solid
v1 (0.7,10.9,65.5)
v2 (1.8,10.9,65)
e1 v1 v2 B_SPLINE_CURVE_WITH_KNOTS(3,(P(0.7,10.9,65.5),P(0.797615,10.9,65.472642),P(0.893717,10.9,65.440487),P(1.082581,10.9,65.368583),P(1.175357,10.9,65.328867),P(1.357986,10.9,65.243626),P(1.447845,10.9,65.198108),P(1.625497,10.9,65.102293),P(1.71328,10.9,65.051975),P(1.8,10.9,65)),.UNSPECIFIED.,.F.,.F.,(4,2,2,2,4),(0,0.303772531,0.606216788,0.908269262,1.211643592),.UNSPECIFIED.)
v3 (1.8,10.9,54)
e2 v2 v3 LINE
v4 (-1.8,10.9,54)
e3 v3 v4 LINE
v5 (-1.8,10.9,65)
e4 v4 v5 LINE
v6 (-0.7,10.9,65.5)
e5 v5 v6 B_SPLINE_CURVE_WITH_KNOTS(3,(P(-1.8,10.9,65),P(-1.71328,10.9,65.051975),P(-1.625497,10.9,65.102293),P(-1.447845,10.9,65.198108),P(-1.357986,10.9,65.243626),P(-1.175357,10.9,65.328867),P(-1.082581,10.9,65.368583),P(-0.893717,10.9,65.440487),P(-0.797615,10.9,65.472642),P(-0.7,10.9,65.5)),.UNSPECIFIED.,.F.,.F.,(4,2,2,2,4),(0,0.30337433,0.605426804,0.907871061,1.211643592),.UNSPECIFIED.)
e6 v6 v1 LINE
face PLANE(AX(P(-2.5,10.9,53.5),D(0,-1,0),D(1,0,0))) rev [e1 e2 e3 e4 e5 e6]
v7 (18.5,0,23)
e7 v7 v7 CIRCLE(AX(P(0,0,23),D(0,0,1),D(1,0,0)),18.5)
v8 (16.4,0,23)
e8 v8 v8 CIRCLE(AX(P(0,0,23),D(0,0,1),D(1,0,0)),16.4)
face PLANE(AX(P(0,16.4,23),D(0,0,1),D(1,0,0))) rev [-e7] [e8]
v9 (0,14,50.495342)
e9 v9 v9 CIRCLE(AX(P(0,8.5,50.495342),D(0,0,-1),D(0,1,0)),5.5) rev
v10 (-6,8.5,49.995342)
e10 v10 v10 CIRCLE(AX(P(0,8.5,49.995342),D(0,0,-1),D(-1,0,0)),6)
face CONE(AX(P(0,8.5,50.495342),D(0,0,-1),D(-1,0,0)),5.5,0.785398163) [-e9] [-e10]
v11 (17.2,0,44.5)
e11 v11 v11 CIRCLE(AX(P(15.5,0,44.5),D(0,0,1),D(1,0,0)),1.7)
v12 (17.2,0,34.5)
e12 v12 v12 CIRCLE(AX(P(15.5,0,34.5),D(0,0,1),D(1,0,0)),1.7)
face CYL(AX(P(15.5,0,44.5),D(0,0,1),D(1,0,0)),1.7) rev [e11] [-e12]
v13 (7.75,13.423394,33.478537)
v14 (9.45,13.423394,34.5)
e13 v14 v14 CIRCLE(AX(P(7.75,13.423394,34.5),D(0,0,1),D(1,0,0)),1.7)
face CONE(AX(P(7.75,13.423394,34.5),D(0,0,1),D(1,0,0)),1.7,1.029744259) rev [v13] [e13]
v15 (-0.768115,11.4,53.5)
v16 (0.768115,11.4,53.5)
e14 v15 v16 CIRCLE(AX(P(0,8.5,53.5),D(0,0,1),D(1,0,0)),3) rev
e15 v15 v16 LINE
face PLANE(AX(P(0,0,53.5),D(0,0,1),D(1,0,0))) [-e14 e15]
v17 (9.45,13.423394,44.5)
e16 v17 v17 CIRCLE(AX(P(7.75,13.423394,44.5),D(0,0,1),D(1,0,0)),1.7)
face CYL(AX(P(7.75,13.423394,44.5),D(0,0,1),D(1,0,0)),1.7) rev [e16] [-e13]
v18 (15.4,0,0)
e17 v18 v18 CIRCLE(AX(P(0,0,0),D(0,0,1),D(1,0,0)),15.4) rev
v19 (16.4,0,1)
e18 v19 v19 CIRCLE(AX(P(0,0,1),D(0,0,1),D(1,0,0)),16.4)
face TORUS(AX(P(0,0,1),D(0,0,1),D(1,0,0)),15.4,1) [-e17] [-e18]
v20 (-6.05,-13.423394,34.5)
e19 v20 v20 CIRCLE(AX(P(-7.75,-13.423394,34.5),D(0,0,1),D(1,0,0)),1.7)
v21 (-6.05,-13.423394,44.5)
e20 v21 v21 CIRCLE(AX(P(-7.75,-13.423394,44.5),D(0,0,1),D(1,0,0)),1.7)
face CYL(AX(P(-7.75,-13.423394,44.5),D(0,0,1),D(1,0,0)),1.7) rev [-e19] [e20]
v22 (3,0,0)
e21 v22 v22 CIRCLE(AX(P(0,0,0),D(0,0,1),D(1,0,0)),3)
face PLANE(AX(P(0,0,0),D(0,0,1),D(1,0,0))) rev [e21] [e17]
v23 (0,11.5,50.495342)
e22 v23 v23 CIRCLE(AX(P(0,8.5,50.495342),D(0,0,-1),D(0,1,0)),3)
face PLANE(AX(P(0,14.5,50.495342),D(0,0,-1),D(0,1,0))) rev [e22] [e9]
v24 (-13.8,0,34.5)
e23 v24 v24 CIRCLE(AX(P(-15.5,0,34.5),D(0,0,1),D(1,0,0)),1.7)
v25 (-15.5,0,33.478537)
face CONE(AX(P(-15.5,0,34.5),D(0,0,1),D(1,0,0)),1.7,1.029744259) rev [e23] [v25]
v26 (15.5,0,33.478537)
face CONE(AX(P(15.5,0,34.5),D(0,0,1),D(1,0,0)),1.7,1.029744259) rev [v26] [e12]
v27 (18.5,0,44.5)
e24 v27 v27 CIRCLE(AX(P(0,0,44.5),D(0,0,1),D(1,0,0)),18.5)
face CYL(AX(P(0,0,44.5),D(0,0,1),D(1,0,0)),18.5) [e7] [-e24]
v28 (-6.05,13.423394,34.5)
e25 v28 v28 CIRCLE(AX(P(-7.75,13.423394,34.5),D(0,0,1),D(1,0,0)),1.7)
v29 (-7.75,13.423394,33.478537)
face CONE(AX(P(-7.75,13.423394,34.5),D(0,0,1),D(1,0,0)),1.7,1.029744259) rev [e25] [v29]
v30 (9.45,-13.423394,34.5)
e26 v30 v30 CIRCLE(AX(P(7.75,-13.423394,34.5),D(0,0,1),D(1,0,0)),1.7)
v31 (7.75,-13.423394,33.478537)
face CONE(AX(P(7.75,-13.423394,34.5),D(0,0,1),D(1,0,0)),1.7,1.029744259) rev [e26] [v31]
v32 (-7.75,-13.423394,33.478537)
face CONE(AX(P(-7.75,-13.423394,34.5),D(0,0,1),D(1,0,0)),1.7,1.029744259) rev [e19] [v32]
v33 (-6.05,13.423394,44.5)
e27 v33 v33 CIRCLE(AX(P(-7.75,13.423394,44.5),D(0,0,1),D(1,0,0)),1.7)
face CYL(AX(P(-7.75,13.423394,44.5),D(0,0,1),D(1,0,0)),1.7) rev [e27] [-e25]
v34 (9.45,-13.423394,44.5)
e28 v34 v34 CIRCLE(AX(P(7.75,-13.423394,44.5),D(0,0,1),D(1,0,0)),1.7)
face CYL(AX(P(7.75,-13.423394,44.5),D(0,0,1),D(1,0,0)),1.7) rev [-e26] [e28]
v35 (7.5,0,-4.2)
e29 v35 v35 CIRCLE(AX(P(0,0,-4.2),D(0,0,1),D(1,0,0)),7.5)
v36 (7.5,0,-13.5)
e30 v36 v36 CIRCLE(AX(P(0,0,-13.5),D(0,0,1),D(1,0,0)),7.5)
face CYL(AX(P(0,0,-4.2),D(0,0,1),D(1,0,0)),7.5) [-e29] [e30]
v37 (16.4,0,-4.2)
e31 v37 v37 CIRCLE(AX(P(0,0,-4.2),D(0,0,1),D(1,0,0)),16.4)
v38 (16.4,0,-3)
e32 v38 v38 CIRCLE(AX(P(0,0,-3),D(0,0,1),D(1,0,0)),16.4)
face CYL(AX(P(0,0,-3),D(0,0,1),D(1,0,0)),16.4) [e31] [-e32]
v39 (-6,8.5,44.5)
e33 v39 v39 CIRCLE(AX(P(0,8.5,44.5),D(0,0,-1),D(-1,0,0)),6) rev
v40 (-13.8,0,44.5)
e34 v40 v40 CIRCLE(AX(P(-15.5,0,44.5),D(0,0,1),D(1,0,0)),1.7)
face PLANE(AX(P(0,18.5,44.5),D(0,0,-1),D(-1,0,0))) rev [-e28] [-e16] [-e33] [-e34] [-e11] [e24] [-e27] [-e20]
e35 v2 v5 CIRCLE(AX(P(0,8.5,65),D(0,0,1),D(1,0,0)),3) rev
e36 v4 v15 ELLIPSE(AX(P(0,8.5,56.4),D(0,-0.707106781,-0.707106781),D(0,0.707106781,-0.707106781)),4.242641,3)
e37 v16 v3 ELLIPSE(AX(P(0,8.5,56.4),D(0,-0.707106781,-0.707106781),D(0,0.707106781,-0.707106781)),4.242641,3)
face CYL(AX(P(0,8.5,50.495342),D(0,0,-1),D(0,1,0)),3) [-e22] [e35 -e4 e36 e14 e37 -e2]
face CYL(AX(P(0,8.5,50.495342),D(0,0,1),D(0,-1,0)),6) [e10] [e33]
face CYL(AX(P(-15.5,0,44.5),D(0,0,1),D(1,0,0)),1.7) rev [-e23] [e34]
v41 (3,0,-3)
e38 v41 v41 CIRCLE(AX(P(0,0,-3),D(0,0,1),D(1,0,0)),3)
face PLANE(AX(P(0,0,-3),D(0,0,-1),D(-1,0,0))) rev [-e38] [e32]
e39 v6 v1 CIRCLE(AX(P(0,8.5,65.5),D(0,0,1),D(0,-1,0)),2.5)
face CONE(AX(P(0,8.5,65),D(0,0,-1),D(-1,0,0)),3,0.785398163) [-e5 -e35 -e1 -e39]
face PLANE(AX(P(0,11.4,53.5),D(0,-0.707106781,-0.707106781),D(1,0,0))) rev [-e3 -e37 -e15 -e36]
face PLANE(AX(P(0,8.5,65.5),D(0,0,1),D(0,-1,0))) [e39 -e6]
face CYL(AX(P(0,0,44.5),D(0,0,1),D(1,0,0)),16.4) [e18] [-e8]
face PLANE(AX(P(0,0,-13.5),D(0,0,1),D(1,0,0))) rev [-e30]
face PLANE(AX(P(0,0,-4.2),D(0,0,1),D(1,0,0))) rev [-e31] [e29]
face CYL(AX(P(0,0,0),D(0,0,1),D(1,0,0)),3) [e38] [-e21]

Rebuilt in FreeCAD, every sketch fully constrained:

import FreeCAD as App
import Part
import Sketcher
from FreeCAD import Vector
Q = App.Units.Quantity


def edges_at(feature, points):
    """Names of the edges that pass closest to the given points."""
    edges = feature.Shape.Edges
    near = lambda p: min(range(len(edges)), key=lambda i: edges[i].distToShape(Part.Vertex(*p))[0])
    return sorted({f"Edge{near(p) + 1}" for p in points})

doc = App.newDocument("Part")
body = doc.addObject("PartDesign::Body", "Body")

# Sketch on YZ plane
sketch1 = body.newObject("Sketcher::SketchObject", "Sketch")
sketch1.AttachmentSupport = (doc.getObject("YZ_Plane"), [""])
sketch1.MapMode = "FlatFace"
sketch1.addGeometry([
    Part.LineSegment(Vector(0, 0, 0), Vector(16.4, 0, 0)),  # 0
    Part.LineSegment(Vector(16.4, 0, 0), Vector(16.4, 23, 0)),  # 1
    Part.LineSegment(Vector(16.4, 23, 0), Vector(18.5, 23, 0)),  # 2
    Part.LineSegment(Vector(18.5, 23, 0), Vector(18.5, 44.5, 0)),  # 3
    Part.LineSegment(Vector(18.5, 44.5, 0), Vector(0, 44.5, 0)),  # 4
    Part.LineSegment(Vector(0, 44.5, 0), Vector(0, 0, 0)),  # 5
], False)
sketch1.addConstraint([
    Sketcher.Constraint("Coincident", 0, 2, 1, 1),
    Sketcher.Constraint("Coincident", 1, 2, 2, 1),
    Sketcher.Constraint("Coincident", 2, 2, 3, 1),
    Sketcher.Constraint("Coincident", 3, 2, 4, 1),
    Sketcher.Constraint("Coincident", 4, 2, 5, 1),
    Sketcher.Constraint("Coincident", 5, 2, 0, 1),
    Sketcher.Constraint("Horizontal", 0),
    Sketcher.Constraint("Vertical", 1),
    Sketcher.Constraint("Horizontal", 2),
    Sketcher.Constraint("Vertical", 3),
    Sketcher.Constraint("Horizontal", 4),
    Sketcher.Constraint("Vertical", 5),
    Sketcher.Constraint("Coincident", 5, 2, -1, 1),
    Sketcher.Constraint("DistanceY", 1, 1, 1, 2, 23.0),
    Sketcher.Constraint("DistanceX", 0, 1, 0, 2, 16.4),
    Sketcher.Constraint("DistanceX", 2, 1, 2, 2, 2.1),
    Sketcher.Constraint("DistanceY", 3, 1, 3, 2, 21.5),
])
revolution = body.newObject("PartDesign::Revolution", "Revolution")
revolution.Profile = sketch1
revolution.ReferenceAxis = (sketch1, ["V_Axis"])
revolution.Angle = 360

# Sketch on YZ plane
sketch2 = body.newObject("Sketcher::SketchObject", "Sketch001")
sketch2.AttachmentSupport = (doc.getObject("YZ_Plane"), [""])
sketch2.MapMode = "FlatFace"
sketch2.addGeometry([
    Part.LineSegment(Vector(14, 50, 0), Vector(8, 50, 0)),
    Part.LineSegment(Vector(8, 50, 0), Vector(8, 44, 0)),
    Part.LineSegment(Vector(8, 44, 0), Vector(14, 44, 0)),
    Part.LineSegment(Vector(14, 44, 0), Vector(14, 50, 0)),
], False)
sketch2.addGeometry(Part.LineSegment(Vector(8, 50, 0), Vector(8, 44, 0)), True)  # axis
sketch2.addConstraint([
    Sketcher.Constraint("Coincident", 0, 2, 1, 1),
    Sketcher.Constraint("Coincident", 1, 2, 2, 1),
    Sketcher.Constraint("Coincident", 2, 2, 3, 1),
    Sketcher.Constraint("Coincident", 3, 2, 0, 1),
    Sketcher.Constraint("Horizontal", 0),
    Sketcher.Constraint("Vertical", 1),
    Sketcher.Constraint("Horizontal", 2),
    Sketcher.Constraint("Vertical", 3),
    Sketcher.Constraint("Vertical", 4),
    Sketcher.Constraint("Coincident", 4, 1, 0, 2),
    Sketcher.Constraint("Horizontal", 2, 2, 4, 2),
    Sketcher.Constraint("DistanceX", 0, 2, 0, 1, 6.0),
    Sketcher.Constraint("DistanceX", -1, 1, 0, 2, 8.5),
    Sketcher.Constraint("DistanceY", -1, 1, 1, 2, 44.5),
    Sketcher.Constraint("DistanceY", 1, 2, 1, 1, 5.995342),
])
revolution2 = body.newObject("PartDesign::Revolution", "Revolution001")
revolution2.Profile = sketch2
revolution2.ReferenceAxis = (sketch2, ["Axis0"])
revolution2.Angle = 360

# Sketch on YZ plane
sketch3 = body.newObject("Sketcher::SketchObject", "Sketch002")
sketch3.AttachmentSupport = (doc.getObject("YZ_Plane"), [""])
sketch3.MapMode = "FlatFace"
sketch3.addGeometry([
    Part.LineSegment(Vector(11.5, 65.5, 0), Vector(8.5, 65.5, 0)),
    Part.LineSegment(Vector(8.5, 65.5, 0), Vector(8.5, 50.5, 0)),
    Part.LineSegment(Vector(8.5, 50.5, 0), Vector(11.5, 50.5, 0)),
    Part.LineSegment(Vector(11.5, 50.5, 0), Vector(11.5, 65.5, 0)),
], False)
sketch3.addGeometry(Part.LineSegment(Vector(8.5, 50.5, 0), Vector(8.5, 65.5, 0)), True)  # axis
sketch3.addConstraint([
    Sketcher.Constraint("Coincident", 0, 2, 1, 1),
    Sketcher.Constraint("Coincident", 1, 2, 2, 1),
    Sketcher.Constraint("Coincident", 2, 2, 3, 1),
    Sketcher.Constraint("Coincident", 3, 2, 0, 1),
    Sketcher.Constraint("Horizontal", 0),
    Sketcher.Constraint("Vertical", 1),
    Sketcher.Constraint("Horizontal", 2),
    Sketcher.Constraint("Vertical", 3),
    Sketcher.Constraint("Vertical", 4),
    Sketcher.Constraint("Coincident", 4, 1, 1, 2),
    Sketcher.Constraint("Horizontal", 3, 2, 4, 2),
    Sketcher.Constraint("DistanceX", 0, 2, 0, 1, 3.0),
    Sketcher.Constraint("DistanceX", -1, 1, 0, 2, 8.5),
    Sketcher.Constraint("DistanceY", -1, 1, 0, 2, 65.5),
    Sketcher.Constraint("DistanceY", 1, 2, 1, 1, 15.004658),
])
revolution3 = body.newObject("PartDesign::Revolution", "Revolution002")
revolution3.Profile = sketch3
revolution3.ReferenceAxis = (sketch3, ["Axis0"])
revolution3.Angle = 360

# Sketch on XY plane
sketch4 = body.newObject("Sketcher::SketchObject", "Sketch003")
sketch4.AttachmentSupport = (doc.getObject("XY_Plane"), [""])
sketch4.MapMode = "FlatFace"
sketch4.AttachmentOffset = App.Placement(Vector(0, 0, 65.5), App.Rotation())
sketch4.addGeometry([
    Part.LineSegment(Vector(-2.5, 11.9, 0), Vector(-2.5, 10.9, 0)),
    Part.LineSegment(Vector(-2.5, 10.9, 0), Vector(2.5, 10.9, 0)),
    Part.LineSegment(Vector(2.5, 10.9, 0), Vector(2.5, 11.9, 0)),
    Part.LineSegment(Vector(2.5, 11.9, 0), Vector(-2.5, 11.9, 0)),
], False)
sketch4.addConstraint([
    Sketcher.Constraint("Coincident", 0, 2, 1, 1),
    Sketcher.Constraint("Coincident", 1, 2, 2, 1),
    Sketcher.Constraint("Coincident", 2, 2, 3, 1),
    Sketcher.Constraint("Coincident", 3, 2, 0, 1),
    Sketcher.Constraint("Vertical", 0),
    Sketcher.Constraint("Horizontal", 1),
    Sketcher.Constraint("Vertical", 2),
    Sketcher.Constraint("Horizontal", 3),
    Sketcher.Constraint("DistanceX", 1, 1, 1, 2, 5.0),
    Sketcher.Constraint("DistanceY", 0, 2, 0, 1, 1.0),
    Sketcher.Constraint("DistanceX", 0, 2, -1, 1, 2.5),
    Sketcher.Constraint("DistanceY", -1, 1, 0, 2, 10.9),
])
pocket1 = body.newObject("PartDesign::Pocket", "Pocket")
pocket1.Profile = sketch4
pocket1.Length = 12
doc.recompute()

chamfer = body.newObject("PartDesign::Chamfer", "Chamfer")
chamfer.Base = (pocket1, edges_at(pocket1, [(0, 5.5, 65.5), (0, 10.9, 53.5)]))
chamfer.Size = 0.5

# Sketch on YZ plane
sketch5 = body.newObject("Sketcher::SketchObject", "Sketch004")
sketch5.AttachmentSupport = (doc.getObject("YZ_Plane"), [""])
sketch5.MapMode = "FlatFace"
sketch5.addGeometry([
    Part.LineSegment(Vector(3, 0, 0), Vector(0, 0, 0)),
    Part.LineSegment(Vector(0, 0, 0), Vector(0, -3, 0)),
    Part.LineSegment(Vector(0, -3, 0), Vector(3, -3, 0)),
    Part.LineSegment(Vector(3, -3, 0), Vector(3, 0, 0)),
], False)
sketch5.addConstraint([
    Sketcher.Constraint("Coincident", 0, 2, 1, 1),
    Sketcher.Constraint("Coincident", 1, 2, 2, 1),
    Sketcher.Constraint("Coincident", 2, 2, 3, 1),
    Sketcher.Constraint("Coincident", 3, 2, 0, 1),
    Sketcher.Constraint("Horizontal", 0),
    Sketcher.Constraint("Vertical", 1),
    Sketcher.Constraint("Horizontal", 2),
    Sketcher.Constraint("Vertical", 3),
    Sketcher.Constraint("Coincident", 0, 2, -1, 1),
    Sketcher.Constraint("Equal", 2, 1),
    Sketcher.Constraint("DistanceX", 0, 2, 0, 1, 3.0),
])
revolution4 = body.newObject("PartDesign::Revolution", "Revolution003")
revolution4.Profile = sketch5
revolution4.ReferenceAxis = (sketch5, ["V_Axis"])
revolution4.Angle = 360

# Sketch on YZ plane
sketch6 = body.newObject("Sketcher::SketchObject", "Sketch005")
sketch6.AttachmentSupport = (doc.getObject("YZ_Plane"), [""])
sketch6.MapMode = "FlatFace"
sketch6.addGeometry([
    Part.LineSegment(Vector(16.4, -3, 0), Vector(0, -3, 0)),
    Part.LineSegment(Vector(0, -3, 0), Vector(0, -4.2, 0)),
    Part.LineSegment(Vector(0, -4.2, 0), Vector(16.4, -4.2, 0)),
    Part.LineSegment(Vector(16.4, -4.2, 0), Vector(16.4, -3, 0)),
], False)
sketch6.addConstraint([
    Sketcher.Constraint("Coincident", 0, 2, 1, 1),
    Sketcher.Constraint("Coincident", 1, 2, 2, 1),
    Sketcher.Constraint("Coincident", 2, 2, 3, 1),
    Sketcher.Constraint("Coincident", 3, 2, 0, 1),
    Sketcher.Constraint("Horizontal", 0),
    Sketcher.Constraint("Vertical", 1),
    Sketcher.Constraint("Horizontal", 2),
    Sketcher.Constraint("Vertical", 3),
    Sketcher.Constraint("PointOnObject", 0, 2, -2),
    Sketcher.Constraint("DistanceX", 0, 2, 0, 1, 16.4),
    Sketcher.Constraint("DistanceY", 1, 2, 1, 1, 1.2),
    Sketcher.Constraint("DistanceY", 0, 2, -1, 1, 3.0),
])
revolution5 = body.newObject("PartDesign::Revolution", "Revolution004")
revolution5.Profile = sketch6
revolution5.ReferenceAxis = (sketch6, ["V_Axis"])
revolution5.Angle = 360

# Sketch on YZ plane
sketch7 = body.newObject("Sketcher::SketchObject", "Sketch006")
sketch7.AttachmentSupport = (doc.getObject("YZ_Plane"), [""])
sketch7.MapMode = "FlatFace"
sketch7.addGeometry([
    Part.LineSegment(Vector(8, -4, 0), Vector(0, -4, 0)),
    Part.LineSegment(Vector(0, -4, 0), Vector(0, -14, 0)),
    Part.LineSegment(Vector(0, -14, 0), Vector(8, -14, 0)),
    Part.LineSegment(Vector(8, -14, 0), Vector(8, -4, 0)),
], False)
sketch7.addConstraint([
    Sketcher.Constraint("Coincident", 0, 2, 1, 1),
    Sketcher.Constraint("Coincident", 1, 2, 2, 1),
    Sketcher.Constraint("Coincident", 2, 2, 3, 1),
    Sketcher.Constraint("Coincident", 3, 2, 0, 1),
    Sketcher.Constraint("Horizontal", 0),
    Sketcher.Constraint("Vertical", 1),
    Sketcher.Constraint("Horizontal", 2),
    Sketcher.Constraint("Vertical", 3),
    Sketcher.Constraint("PointOnObject", 0, 2, -2),
    Sketcher.Constraint("DistanceX", 0, 2, 0, 1, 7.5),
    Sketcher.Constraint("DistanceY", 1, 2, 1, 1, 9.3),
    Sketcher.Constraint("DistanceY", 0, 2, -1, 1, 4.2),
])
revolution6 = body.newObject("PartDesign::Revolution", "Revolution005")
revolution6.Profile = sketch7
revolution6.ReferenceAxis = (sketch7, ["V_Axis"])
revolution6.Angle = 360

# Sketch on YZ plane
sketch8 = body.newObject("Sketcher::SketchObject", "Sketch007")
sketch8.AttachmentSupport = (doc.getObject("YZ_Plane"), [""])
sketch8.MapMode = "FlatFace"
sketch8.AttachmentOffset = App.Placement(Vector(0, 0, 15.5), App.Rotation())
sketch8.addGeometry([
    Part.LineSegment(Vector(0, 33.5, 0), Vector(0, 44.5, 0)),
    Part.LineSegment(Vector(0, 44.5, 0), Vector(-1.7, 44.5, 0)),
    Part.LineSegment(Vector(-1.7, 44.5, 0), Vector(-1.7, 34.5, 0)),
    Part.LineSegment(Vector(-1.7, 34.5, 0), Vector(0, 33.5, 0)),
], False)
sketch8.addConstraint([
    Sketcher.Constraint("Coincident", 0, 2, 1, 1),
    Sketcher.Constraint("Coincident", 1, 2, 2, 1),
    Sketcher.Constraint("Coincident", 2, 2, 3, 1),
    Sketcher.Constraint("Coincident", 3, 2, 0, 1),
    Sketcher.Constraint("Vertical", 0),
    Sketcher.Constraint("Horizontal", 1),
    Sketcher.Constraint("Vertical", 2),
    Sketcher.Constraint("PointOnObject", 0, 2, -2),
    Sketcher.Constraint("DistanceY", 2, 2, 2, 1, 10.0),
    Sketcher.Constraint("Angle", 3, Q("-31 deg")),
    Sketcher.Constraint("DistanceX", 1, 2, 1, 1, 1.7),
    Sketcher.Constraint("DistanceY", -1, 1, 0, 2, 44.5),
])
groove = body.newObject("PartDesign::Groove", "Groove")
groove.Profile = sketch8
groove.ReferenceAxis = (sketch8, ["V_Axis"])
groove.Angle = 360
doc.recompute()

polarpattern = body.newObject("PartDesign::PolarPattern", "PolarPattern")
polarpattern.Originals = [groove]
polarpattern.Axis = (doc.getObject("Z_Axis"), [""])
polarpattern.Angle = 360
polarpattern.Occurrences = 6
body.Tip = polarpattern
doc.recompute()

fillet = body.newObject("PartDesign::Fillet", "Fillet")
fillet.Base = (polarpattern, edges_at(polarpattern, [(0, -16.4, 0)]))
fillet.Radius = 1
doc.recompute()

chamfer2 = body.newObject("PartDesign::Chamfer", "Chamfer001")
chamfer2.Base = (fillet, edges_at(fillet, [(0, 2.5, 50.495)]))
chamfer2.Size = 0.5

doc.recompute()
